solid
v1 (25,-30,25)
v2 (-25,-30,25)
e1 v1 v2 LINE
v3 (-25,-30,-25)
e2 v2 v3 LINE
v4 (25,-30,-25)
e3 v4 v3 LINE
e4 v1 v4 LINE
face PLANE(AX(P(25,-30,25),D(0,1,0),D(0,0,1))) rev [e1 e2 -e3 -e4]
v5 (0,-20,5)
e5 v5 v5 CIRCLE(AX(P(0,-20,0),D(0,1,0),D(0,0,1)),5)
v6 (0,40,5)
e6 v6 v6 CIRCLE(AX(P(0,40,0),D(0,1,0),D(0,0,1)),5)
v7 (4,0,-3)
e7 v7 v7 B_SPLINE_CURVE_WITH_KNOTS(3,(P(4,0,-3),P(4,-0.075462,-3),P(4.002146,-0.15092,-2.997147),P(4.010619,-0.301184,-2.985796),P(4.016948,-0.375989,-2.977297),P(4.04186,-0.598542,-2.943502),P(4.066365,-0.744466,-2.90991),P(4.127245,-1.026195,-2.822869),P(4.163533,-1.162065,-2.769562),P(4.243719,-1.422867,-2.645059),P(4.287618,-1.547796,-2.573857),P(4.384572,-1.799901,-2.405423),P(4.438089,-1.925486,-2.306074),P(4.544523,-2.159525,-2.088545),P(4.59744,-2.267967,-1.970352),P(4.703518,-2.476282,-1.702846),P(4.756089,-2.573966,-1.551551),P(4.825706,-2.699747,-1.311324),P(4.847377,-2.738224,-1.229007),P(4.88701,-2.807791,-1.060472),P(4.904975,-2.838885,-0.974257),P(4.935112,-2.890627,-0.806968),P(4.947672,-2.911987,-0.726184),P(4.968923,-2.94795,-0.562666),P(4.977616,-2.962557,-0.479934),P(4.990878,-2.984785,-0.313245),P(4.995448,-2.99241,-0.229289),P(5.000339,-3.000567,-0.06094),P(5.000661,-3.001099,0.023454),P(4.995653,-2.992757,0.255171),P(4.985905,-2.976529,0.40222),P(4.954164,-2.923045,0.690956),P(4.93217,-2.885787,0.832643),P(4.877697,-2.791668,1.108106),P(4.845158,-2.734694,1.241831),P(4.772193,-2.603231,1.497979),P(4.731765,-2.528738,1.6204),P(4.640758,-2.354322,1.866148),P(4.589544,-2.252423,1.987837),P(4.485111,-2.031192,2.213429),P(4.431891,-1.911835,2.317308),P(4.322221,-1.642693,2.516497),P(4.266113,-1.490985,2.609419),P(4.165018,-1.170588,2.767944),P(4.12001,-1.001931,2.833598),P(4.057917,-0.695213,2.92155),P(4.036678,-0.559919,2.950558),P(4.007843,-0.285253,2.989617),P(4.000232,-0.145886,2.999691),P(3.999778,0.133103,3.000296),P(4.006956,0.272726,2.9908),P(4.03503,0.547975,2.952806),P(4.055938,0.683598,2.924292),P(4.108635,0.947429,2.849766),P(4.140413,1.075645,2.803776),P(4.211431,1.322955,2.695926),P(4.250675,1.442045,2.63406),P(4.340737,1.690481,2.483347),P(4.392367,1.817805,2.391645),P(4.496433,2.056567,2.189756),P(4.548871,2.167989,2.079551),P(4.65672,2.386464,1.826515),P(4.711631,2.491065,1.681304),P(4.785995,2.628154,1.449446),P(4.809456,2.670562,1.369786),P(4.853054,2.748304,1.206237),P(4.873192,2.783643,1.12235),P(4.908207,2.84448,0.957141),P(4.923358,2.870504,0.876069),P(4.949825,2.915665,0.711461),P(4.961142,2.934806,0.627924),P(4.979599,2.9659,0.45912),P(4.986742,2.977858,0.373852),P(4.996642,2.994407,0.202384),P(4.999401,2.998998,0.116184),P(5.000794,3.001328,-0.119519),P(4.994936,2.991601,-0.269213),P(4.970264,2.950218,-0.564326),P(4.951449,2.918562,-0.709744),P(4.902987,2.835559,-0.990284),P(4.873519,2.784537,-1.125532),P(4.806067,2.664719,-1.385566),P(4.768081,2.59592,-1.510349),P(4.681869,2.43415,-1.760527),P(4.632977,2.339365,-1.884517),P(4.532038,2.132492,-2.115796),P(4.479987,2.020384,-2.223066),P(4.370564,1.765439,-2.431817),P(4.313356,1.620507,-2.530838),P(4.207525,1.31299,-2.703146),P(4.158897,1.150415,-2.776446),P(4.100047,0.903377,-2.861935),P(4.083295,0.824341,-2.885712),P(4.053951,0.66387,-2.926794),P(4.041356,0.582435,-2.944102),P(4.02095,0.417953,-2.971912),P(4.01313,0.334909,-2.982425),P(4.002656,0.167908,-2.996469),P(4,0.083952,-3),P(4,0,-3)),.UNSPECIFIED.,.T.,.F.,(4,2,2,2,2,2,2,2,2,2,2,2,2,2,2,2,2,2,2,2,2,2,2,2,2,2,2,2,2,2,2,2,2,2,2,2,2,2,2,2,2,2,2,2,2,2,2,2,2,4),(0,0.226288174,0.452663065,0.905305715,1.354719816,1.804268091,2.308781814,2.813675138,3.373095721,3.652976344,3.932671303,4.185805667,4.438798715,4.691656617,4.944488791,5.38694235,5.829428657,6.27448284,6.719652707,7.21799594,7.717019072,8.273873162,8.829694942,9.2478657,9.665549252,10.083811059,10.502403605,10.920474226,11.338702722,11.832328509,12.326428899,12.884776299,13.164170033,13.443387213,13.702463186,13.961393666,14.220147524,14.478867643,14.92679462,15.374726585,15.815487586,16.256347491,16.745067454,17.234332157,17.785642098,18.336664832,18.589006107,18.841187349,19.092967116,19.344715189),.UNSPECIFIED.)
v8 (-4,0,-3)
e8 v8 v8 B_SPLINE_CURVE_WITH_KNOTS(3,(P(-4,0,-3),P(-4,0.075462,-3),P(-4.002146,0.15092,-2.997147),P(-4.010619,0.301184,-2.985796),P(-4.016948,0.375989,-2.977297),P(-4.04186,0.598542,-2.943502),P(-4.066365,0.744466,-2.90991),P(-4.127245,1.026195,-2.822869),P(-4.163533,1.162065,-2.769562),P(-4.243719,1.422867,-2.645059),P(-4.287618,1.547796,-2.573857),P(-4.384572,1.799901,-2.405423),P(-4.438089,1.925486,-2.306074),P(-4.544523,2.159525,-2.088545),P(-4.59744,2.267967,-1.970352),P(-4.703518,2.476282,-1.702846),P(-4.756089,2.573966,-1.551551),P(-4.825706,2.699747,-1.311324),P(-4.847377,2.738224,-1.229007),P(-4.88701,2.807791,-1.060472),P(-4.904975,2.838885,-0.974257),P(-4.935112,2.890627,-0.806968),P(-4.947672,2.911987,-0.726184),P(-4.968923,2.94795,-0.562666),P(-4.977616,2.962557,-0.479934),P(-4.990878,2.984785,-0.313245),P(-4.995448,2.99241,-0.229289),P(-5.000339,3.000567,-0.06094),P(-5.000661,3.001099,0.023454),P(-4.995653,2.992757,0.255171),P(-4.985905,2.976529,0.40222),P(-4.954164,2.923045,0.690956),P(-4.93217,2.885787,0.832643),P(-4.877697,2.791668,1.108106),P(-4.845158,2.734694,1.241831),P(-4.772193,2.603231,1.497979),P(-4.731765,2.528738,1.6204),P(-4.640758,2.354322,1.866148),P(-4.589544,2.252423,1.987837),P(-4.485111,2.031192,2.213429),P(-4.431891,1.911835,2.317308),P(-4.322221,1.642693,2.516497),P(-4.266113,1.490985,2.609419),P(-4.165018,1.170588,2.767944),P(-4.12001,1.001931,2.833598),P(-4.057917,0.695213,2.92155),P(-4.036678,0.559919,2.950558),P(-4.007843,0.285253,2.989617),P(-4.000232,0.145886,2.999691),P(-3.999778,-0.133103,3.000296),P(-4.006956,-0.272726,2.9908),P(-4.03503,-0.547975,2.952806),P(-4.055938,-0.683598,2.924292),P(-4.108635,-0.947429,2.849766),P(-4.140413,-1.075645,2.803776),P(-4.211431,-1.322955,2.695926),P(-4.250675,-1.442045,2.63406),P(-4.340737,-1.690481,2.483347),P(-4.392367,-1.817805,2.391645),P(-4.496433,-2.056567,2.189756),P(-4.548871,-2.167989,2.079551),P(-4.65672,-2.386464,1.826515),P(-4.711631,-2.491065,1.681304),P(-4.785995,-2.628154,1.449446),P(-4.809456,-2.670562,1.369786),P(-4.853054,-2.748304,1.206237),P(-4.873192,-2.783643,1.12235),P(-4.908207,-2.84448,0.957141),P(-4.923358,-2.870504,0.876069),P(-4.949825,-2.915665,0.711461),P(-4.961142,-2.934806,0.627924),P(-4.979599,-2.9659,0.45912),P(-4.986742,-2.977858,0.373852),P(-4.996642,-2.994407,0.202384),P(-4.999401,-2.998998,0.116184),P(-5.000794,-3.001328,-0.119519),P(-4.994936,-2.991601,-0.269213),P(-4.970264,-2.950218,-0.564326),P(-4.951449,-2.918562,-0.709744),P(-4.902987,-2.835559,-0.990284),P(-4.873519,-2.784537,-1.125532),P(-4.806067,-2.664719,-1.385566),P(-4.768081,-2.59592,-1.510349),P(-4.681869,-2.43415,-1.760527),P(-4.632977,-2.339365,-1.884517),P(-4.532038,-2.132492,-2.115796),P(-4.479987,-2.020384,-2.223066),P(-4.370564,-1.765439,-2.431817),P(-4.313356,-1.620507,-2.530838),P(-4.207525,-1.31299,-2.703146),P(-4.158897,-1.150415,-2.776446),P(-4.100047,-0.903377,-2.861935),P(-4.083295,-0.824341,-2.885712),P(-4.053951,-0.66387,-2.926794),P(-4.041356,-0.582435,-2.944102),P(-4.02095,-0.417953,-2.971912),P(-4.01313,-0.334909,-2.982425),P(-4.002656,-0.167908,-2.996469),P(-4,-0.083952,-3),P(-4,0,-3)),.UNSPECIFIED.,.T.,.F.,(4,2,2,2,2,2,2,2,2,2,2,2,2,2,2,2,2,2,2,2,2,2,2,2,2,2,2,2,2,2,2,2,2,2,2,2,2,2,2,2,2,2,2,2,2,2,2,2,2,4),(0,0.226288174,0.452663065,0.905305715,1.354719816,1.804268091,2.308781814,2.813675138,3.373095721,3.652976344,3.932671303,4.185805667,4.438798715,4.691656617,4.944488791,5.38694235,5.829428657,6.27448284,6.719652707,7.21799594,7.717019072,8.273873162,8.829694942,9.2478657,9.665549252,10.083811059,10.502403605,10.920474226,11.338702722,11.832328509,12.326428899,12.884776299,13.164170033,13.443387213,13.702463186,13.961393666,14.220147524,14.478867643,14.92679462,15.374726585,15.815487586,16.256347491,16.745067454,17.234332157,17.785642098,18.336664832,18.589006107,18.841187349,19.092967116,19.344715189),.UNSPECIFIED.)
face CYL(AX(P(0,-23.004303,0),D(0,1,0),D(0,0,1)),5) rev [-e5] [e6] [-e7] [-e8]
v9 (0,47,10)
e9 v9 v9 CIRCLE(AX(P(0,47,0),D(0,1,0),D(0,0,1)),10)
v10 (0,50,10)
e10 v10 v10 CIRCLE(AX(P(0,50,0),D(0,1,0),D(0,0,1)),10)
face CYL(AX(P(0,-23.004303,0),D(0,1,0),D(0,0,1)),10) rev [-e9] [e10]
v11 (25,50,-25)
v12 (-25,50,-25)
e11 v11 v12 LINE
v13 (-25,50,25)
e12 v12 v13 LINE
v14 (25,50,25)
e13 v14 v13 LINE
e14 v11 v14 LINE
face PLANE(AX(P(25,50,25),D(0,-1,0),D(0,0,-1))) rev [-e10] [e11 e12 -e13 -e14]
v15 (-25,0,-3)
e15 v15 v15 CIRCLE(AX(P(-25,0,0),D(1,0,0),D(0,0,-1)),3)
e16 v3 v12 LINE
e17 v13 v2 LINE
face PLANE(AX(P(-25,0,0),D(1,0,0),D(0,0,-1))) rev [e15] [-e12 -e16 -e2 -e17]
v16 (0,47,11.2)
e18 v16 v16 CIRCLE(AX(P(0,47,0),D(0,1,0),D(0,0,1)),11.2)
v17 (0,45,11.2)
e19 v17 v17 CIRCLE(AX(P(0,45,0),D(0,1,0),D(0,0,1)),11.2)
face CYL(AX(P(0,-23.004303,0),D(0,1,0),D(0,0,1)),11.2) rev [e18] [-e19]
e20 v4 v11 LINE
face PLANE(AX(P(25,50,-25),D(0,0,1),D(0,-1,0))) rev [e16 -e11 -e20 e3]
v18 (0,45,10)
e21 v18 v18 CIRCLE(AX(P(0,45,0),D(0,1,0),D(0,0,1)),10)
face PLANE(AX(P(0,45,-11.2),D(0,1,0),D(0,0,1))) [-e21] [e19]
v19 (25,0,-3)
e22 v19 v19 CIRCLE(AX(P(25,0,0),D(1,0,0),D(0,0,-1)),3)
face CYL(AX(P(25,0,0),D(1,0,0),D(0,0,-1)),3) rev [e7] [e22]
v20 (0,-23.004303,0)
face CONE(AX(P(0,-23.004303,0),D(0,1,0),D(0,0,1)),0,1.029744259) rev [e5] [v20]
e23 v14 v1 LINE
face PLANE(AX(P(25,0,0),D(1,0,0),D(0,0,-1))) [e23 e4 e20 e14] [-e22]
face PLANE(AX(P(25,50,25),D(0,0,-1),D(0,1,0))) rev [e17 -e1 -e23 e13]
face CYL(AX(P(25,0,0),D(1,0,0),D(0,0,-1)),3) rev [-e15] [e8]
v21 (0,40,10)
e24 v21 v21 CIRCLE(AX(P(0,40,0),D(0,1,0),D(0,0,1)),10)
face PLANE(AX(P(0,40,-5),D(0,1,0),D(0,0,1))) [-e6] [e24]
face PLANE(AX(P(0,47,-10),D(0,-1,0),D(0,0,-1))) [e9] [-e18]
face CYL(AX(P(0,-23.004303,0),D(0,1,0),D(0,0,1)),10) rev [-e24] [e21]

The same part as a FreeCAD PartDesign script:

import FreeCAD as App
import Part
import Sketcher

V = App.Vector
Q = App.Units.Quantity

doc = App.newDocument("Part")
body = doc.addObject("PartDesign::Body", "Body")

# Sketch on YZ plane
sketch1 = doc.addObject("Sketcher::SketchObject", "Sketch")
body.addObject(sketch1)
sketch1.AttachmentSupport = (doc.YZ_Plane, [""])
sketch1.MapMode = "FlatFace"
sketch1.addGeometry([
    Part.LineSegment(V(50, 25, 0), V(-30, 25, 0)),
    Part.LineSegment(V(-30, 25, 0), V(-30, -25, 0)),
    Part.LineSegment(V(-30, -25, 0), V(50, -25, 0)),
    Part.LineSegment(V(50, -25, 0), V(50, 25, 0)),
], False)
sketch1.addConstraint([
    Sketcher.Constraint("Coincident", 0, 2, 1, 1),
    Sketcher.Constraint("Coincident", 1, 2, 2, 1),
    Sketcher.Constraint("Coincident", 2, 2, 3, 1),
    Sketcher.Constraint("Coincident", 3, 2, 0, 1),
    Sketcher.Constraint("Horizontal", 0),
    Sketcher.Constraint("Vertical", 1),
    Sketcher.Constraint("Horizontal", 2),
    Sketcher.Constraint("Vertical", 3),
    Sketcher.Constraint("DistanceX", 0, 2, 0, 1, Q("80 mm")),
    Sketcher.Constraint("DistanceY", 1, 2, 1, 1, Q("50 mm")),
    Sketcher.Constraint("DistanceX", 0, 2, -1, 1, Q("30 mm")),
    Sketcher.Constraint("DistanceY", -1, 1, 0, 2, Q("25 mm")),
])
pad1 = doc.addObject("PartDesign::Pad", "Pad")
body.addObject(pad1)
pad1.Profile = sketch1
pad1.Length = 50
pad1.Midplane = True

# Sketch on YZ plane
sketch2 = doc.addObject("Sketcher::SketchObject", "Sketch001")
body.addObject(sketch2)
sketch2.AttachmentSupport = (doc.YZ_Plane, [""])
sketch2.MapMode = "FlatFace"
sketch2.addGeometry([
    Part.LineSegment(V(50, 0, 0), V(-23, 0, 0)),  # 0
    Part.LineSegment(V(-23, 0, 0), V(-20, -5, 0)),  # 1
    Part.LineSegment(V(-20, -5, 0), V(40, -5, 0)),  # 2
    Part.LineSegment(V(40, -5, 0), V(40, -10, 0)),  # 3
    Part.LineSegment(V(40, -10, 0), V(45, -10, 0)),  # 4
    Part.LineSegment(V(45, -10, 0), V(45, -11.2, 0)),  # 5
    Part.LineSegment(V(45, -11.2, 0), V(47, -11.2, 0)),  # 6
    Part.LineSegment(V(47, -11.2, 0), V(47, -10, 0)),  # 7
    Part.LineSegment(V(47, -10, 0), V(50, -10, 0)),  # 8
    Part.LineSegment(V(50, -10, 0), V(50, 0, 0)),  # 9
], False)
sketch2.addConstraint([
    Sketcher.Constraint("Coincident", 0, 2, 1, 1),
    Sketcher.Constraint("Coincident", 1, 2, 2, 1),
    Sketcher.Constraint("Coincident", 2, 2, 3, 1),
    Sketcher.Constraint("Coincident", 3, 2, 4, 1),
    Sketcher.Constraint("Coincident", 4, 2, 5, 1),
    Sketcher.Constraint("Coincident", 5, 2, 6, 1),
    Sketcher.Constraint("Coincident", 6, 2, 7, 1),
    Sketcher.Constraint("Coincident", 7, 2, 8, 1),
    Sketcher.Constraint("Coincident", 8, 2, 9, 1),
    Sketcher.Constraint("Coincident", 9, 2, 0, 1),
    Sketcher.Constraint("Horizontal", 0),
    Sketcher.Constraint("Horizontal", 2),
    Sketcher.Constraint("Vertical", 3),
    Sketcher.Constraint("Horizontal", 4),
    Sketcher.Constraint("Vertical", 5),
    Sketcher.Constraint("Horizontal", 6),
    Sketcher.Constraint("Vertical", 7),
    Sketcher.Constraint("Horizontal", 8),
    Sketcher.Constraint("Vertical", 9),
    Sketcher.Constraint("PointOnObject", 0, 2, -1),
    Sketcher.Constraint("Horizontal", 4, 2, 7, 2),
    Sketcher.Constraint("Equal", 4, 3),
    Sketcher.Constraint("DistanceX", 2, 1, 2, 2, Q("60 mm")),
    Sketcher.Constraint("DistanceX", 4, 1, 4, 2, Q("5 mm")),
    Sketcher.Constraint("DistanceX", 6, 1, 6, 2, Q("2 mm")),
    Sketcher.Constraint("DistanceX", 8, 1, 8, 2, Q("3 mm")),
    Sketcher.Constraint("DistanceY", 9, 1, 9, 2, Q("10 mm")),
    Sketcher.Constraint("Angle", 1, Q("-59 deg")),
    Sketcher.Constraint("DistanceY", 5, 2, 5, 1, Q("1.2 mm")),
    Sketcher.Constraint("DistanceX", 1, 2, -1, 1, Q("20 mm")),
])
groove = doc.addObject("PartDesign::Groove", "Groove")
body.addObject(groove)
groove.Profile = sketch2
groove.ReferenceAxis = (sketch2, ["H_Axis"])
groove.Angle = 360

# Sketch on YZ plane
sketch3 = doc.addObject("Sketcher::SketchObject", "Sketch002")
body.addObject(sketch3)
sketch3.AttachmentSupport = (doc.YZ_Plane, [""])
sketch3.MapMode = "FlatFace"
sketch3.AttachmentOffset = App.Placement(V(0, 0, 25), App.Rotation())
sketch3.addGeometry(Part.Circle(V(0, 0, 0), V(0, 0, 1), 3), False)
sketch3.addConstraint([
    Sketcher.Constraint("Coincident", 0, 3, -1, 1),
    Sketcher.Constraint("Diameter", 0, Q("6 mm")),
])
doc.recompute()
hole = doc.addObject("PartDesign::Hole", "Hole")
body.addObject(hole)
hole.Profile = sketch3
hole.ThreadType = "None"
hole.Diameter = 6
hole.DepthType = "ThroughAll"

doc.recompute()
